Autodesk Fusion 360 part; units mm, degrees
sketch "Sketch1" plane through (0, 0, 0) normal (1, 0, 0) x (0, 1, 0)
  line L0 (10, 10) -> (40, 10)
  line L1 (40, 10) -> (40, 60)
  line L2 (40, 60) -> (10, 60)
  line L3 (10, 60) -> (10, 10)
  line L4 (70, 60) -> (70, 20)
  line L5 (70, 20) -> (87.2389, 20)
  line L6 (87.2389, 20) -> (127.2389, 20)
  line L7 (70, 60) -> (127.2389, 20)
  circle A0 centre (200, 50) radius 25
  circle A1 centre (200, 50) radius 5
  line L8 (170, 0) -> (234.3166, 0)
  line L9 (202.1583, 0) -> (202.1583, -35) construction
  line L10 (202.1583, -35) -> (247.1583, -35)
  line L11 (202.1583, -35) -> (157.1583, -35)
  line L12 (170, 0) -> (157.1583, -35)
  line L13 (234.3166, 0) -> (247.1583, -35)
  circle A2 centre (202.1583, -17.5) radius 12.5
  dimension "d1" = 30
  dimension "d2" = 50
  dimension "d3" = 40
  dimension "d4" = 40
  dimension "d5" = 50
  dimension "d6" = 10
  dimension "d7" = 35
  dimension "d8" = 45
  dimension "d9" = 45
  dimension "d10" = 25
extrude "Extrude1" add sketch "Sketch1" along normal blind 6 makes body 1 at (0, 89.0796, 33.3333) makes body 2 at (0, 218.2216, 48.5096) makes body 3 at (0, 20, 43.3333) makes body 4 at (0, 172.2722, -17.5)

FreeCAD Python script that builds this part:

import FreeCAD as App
import Part
import Sketcher
from FreeCAD import Vector


def add_polygon(sketch, points):
    """Adds a closed chain of lines whose ends are joined by coincident constraints."""
    first, n = sketch.GeometryCount, len(points)
    for a, b in zip(points, points[1:] + points[:1]):
        sketch.addGeometry(Part.LineSegment(App.Vector(*a, 0), App.Vector(*b, 0)), False)
    for i in range(n):
        sketch.addConstraint(Sketcher.Constraint("Coincident", first + i, 2, first + (i + 1) % n, 1))

doc = App.newDocument("Part")
body = doc.addObject("PartDesign::Body", "Body")
body.AllowCompound = True

sketch1 = doc.addObject("Sketcher::SketchObject", "Sketch")
body.addObject(sketch1)
sketch1.AttachmentSupport = (doc.YZ_Plane, [""])
sketch1.MapMode = "FlatFace"
add_polygon(sketch1, [(10, 60), (10, 10), (40, 10), (40, 60)])
add_polygon(sketch1, [(127, 20), (70, 60), (70, 20)])
sketch1.addGeometry(Part.Circle(Vector(200, 50, 0), Vector(0, 0, 1), 25), False)
sketch1.addGeometry(Part.Circle(Vector(200, 50, 0), Vector(0, 0, 1), 5), False)
add_polygon(sketch1, [(234, 0), (170, 0), (157, -35), (247, -35)])
sketch1.addGeometry(Part.Circle(Vector(202, -18, 0), Vector(0, 0, 1), 12), False)
sketch1.addConstraint([
    Sketcher.Constraint("Vertical", 0),
    Sketcher.Constraint("Horizontal", 1),
    Sketcher.Constraint("Vertical", 2),
    Sketcher.Constraint("Horizontal", 3),
    Sketcher.Constraint("Vertical", 5),
    Sketcher.Constraint("Horizontal", 6),
    Sketcher.Constraint("Horizontal", 9),
    Sketcher.Constraint("Horizontal", 11),
    Sketcher.Constraint("Coincident", 8, 3, 7, 3),
    Sketcher.Constraint("PointOnObject", 9, 2, -1),
    Sketcher.Constraint("Horizontal", 3, 2, 4, 2),
    Sketcher.Constraint("Equal", 10, 12),
    Sketcher.Constraint("Diameter", 7, 50.0),
    Sketcher.Constraint("Diameter", 8, 10.0),
    Sketcher.Constraint("Diameter", 13, 25.0),
    Sketcher.Constraint("DistanceX", 1, 1, 1, 2, 30.0),
    Sketcher.Constraint("DistanceY", 0, 2, 0, 1, 50.0),
    Sketcher.Constraint("DistanceY", 5, 2, 5, 1, 40.0),
    Sketcher.Constraint("DistanceY", -1, 1, 7, 3, 50.0),
    Sketcher.Constraint("DistanceX", -1, 1, 0, 2, 10.0),
    Sketcher.Constraint("DistanceY", -1, 1, 0, 2, 10.0),
    Sketcher.Constraint("DistanceY", 10, 2, -1, 1, 35.0),
    Sketcher.Constraint("DistanceX", 2, 2, 4, 2, 30.0),
    Sketcher.Constraint("DistanceX", 9, 2, 7, 3, 30.0),
    Sketcher.Constraint("DistanceX", 10, 2, 13, 3, 45.0),
    Sketcher.Constraint("DistanceX", 13, 3, 11, 2, 45.0),
    Sketcher.Constraint("DistanceX", -1, 1, 7, 3, 200.0),
    Sketcher.Constraint("DistanceY", 13, 3, -1, 1, 17.5),
    Sketcher.Constraint("DistanceX", 6, 1, 6, 2, 57.239),
    Sketcher.Constraint("DistanceX", 9, 2, 9, 1, 64.3166),
])
pad1 = doc.addObject("PartDesign::Pad", "Pad")
body.addObject(pad1)
pad1.Profile = sketch1
pad1.Length = 6

doc.recompute()
